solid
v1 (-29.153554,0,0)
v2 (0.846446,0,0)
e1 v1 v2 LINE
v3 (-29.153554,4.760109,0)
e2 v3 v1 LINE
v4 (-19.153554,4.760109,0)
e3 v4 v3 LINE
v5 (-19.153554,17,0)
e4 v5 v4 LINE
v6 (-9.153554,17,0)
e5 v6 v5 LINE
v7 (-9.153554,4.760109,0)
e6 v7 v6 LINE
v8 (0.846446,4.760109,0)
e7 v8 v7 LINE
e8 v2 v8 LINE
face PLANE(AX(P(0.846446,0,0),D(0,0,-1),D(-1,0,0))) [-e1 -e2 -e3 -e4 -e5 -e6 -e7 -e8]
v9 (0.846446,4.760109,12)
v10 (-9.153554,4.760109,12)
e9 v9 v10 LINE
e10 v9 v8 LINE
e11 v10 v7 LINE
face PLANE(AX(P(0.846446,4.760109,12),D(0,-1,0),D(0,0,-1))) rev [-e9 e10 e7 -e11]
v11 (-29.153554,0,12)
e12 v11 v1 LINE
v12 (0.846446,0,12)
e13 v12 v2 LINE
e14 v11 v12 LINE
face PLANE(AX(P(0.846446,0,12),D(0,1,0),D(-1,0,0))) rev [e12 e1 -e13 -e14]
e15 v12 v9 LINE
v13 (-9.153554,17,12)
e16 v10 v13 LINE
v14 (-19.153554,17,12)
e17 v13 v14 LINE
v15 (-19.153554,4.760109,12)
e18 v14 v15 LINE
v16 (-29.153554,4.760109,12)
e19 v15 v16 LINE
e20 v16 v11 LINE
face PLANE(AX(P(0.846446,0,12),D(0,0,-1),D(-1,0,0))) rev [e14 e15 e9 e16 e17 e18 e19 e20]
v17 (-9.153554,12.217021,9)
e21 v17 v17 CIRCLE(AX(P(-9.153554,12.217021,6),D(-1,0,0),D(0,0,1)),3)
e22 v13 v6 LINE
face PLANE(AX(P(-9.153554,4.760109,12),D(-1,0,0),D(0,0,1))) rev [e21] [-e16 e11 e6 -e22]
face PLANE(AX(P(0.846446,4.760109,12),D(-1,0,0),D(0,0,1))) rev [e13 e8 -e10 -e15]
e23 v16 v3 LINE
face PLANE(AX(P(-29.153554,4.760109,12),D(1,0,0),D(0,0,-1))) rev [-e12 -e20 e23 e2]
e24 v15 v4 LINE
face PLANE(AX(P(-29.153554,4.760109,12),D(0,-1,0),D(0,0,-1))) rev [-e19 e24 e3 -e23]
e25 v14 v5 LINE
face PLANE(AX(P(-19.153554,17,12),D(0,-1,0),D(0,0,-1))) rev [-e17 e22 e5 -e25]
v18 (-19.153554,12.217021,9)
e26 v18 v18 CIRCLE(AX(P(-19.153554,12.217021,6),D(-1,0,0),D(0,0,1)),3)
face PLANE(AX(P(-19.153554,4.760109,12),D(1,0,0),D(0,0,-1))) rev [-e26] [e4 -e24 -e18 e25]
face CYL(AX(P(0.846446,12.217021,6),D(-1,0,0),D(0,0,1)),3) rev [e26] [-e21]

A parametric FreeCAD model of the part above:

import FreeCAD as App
import Part
import Sketcher
from FreeCAD import Vector
Q = App.Units.Quantity

doc = App.newDocument("Part")
body = doc.addObject("PartDesign::Body", "Body")

sketch1 = body.newObject("Sketcher::SketchObject", "Sketch")
sketch1.AttachmentSupport = (doc.getObject("XY_Plane"), [""])
sketch1.MapMode = "FlatFace"
sketch1.addGeometry(Part.LineSegment(Vector(-29.153554, 0, 0), Vector(0.846446, 0, 0)), False)
sketch1.addGeometry(Part.LineSegment(Vector(0.846446, 0, 0), Vector(0.846446, 4.760109, 0)), False)
sketch1.addGeometry(Part.LineSegment(Vector(0.846446, 4.760109, 0), Vector(-9.153554, 4.760109, 0)), False)
sketch1.addGeometry(Part.LineSegment(Vector(-9.153554, 4.760109, 0), Vector(-9.153554, 17, 0)), False)
sketch1.addGeometry(Part.LineSegment(Vector(-9.153554, 17, 0), Vector(-19.153554, 17, 0)), False)
sketch1.addGeometry(Part.LineSegment(Vector(-19.153554, 17, 0), Vector(-19.153554, 4.760109, 0)), False)
sketch1.addGeometry(Part.LineSegment(Vector(-19.153554, 4.760109, 0), Vector(-29.153554, 4.760109, 0)), False)
sketch1.addGeometry(Part.LineSegment(Vector(-29.153554, 4.760109, 0), Vector(-29.153554, 0, 0)), False)
sketch1.addConstraint(Sketcher.Constraint("Coincident", 0, 2, 1, 1))
sketch1.addConstraint(Sketcher.Constraint("Coincident", 1, 2, 2, 1))
sketch1.addConstraint(Sketcher.Constraint("Coincident", 2, 2, 3, 1))
sketch1.addConstraint(Sketcher.Constraint("Coincident", 3, 2, 4, 1))
sketch1.addConstraint(Sketcher.Constraint("Coincident", 4, 2, 5, 1))
sketch1.addConstraint(Sketcher.Constraint("Coincident", 5, 2, 6, 1))
sketch1.addConstraint(Sketcher.Constraint("Coincident", 6, 2, 7, 1))
sketch1.addConstraint(Sketcher.Constraint("Coincident", 7, 2, 0, 1))
sketch1.addConstraint(Sketcher.Constraint("Horizontal", 0))
sketch1.addConstraint(Sketcher.Constraint("Vertical", 1))
sketch1.addConstraint(Sketcher.Constraint("Horizontal", 2))
sketch1.addConstraint(Sketcher.Constraint("Vertical", 3))
sketch1.addConstraint(Sketcher.Constraint("Horizontal", 4))
sketch1.addConstraint(Sketcher.Constraint("Vertical", 5))
sketch1.addConstraint(Sketcher.Constraint("Horizontal", 6))
sketch1.addConstraint(Sketcher.Constraint("Vertical", 7))
sketch1.addConstraint(Sketcher.Constraint("PointOnObject", 0, 2, -1))
sketch1.addConstraint(Sketcher.Constraint("Horizontal", 2, 2, 5, 2))
sketch1.addConstraint(Sketcher.Constraint("Equal", 2, 4))
sketch1.addConstraint(Sketcher.Constraint("Equal", 4, 6))
sketch1.addConstraint(Sketcher.Constraint("DistanceX", 0, 1, 0, 2, Q("30 mm")))
sketch1.addConstraint(Sketcher.Constraint("DistanceY", -1, 1, 3, 2, Q("17 mm")))
sketch1.addConstraint(Sketcher.Constraint("DistanceY", 1, 1, 1, 2, Q("4.760109 mm")))
sketch1.addConstraint(Sketcher.Constraint("DistanceX", -1, 1, 0, 2, Q("0.846446 mm")))
pad1 = body.newObject("PartDesign::Pad", "Pad")
pad1.Profile = sketch1
pad1.Length = 12

sketch2 = body.newObject("Sketcher::SketchObject", "Sketch001")
sketch2.AttachmentSupport = (doc.getObject("YZ_Plane"), [""])
sketch2.MapMode = "FlatFace"
sketch2.AttachmentOffset = App.Placement(Vector(0, 0, -19.153554), App.Rotation())
sketch2.addGeometry(Part.Circle(Vector(12.217021, 6, 0), Vector(0, 0, 1), 3), False)
sketch2.addConstraint(Sketcher.Constraint("Diameter", 0, Q("6 mm")))
sketch2.addConstraint(Sketcher.Constraint("DistanceY", -1, 1, 0, 3, Q("6 mm")))
sketch2.addConstraint(Sketcher.Constraint("DistanceX", -1, 1, 0, 3, Q("12.217021 mm")))
pocket1 = body.newObject("PartDesign::Pocket", "Pocket")
pocket1.Profile = sketch2
pocket1.Type = "ThroughAll"
pocket1.Reversed = True

doc.recompute()
